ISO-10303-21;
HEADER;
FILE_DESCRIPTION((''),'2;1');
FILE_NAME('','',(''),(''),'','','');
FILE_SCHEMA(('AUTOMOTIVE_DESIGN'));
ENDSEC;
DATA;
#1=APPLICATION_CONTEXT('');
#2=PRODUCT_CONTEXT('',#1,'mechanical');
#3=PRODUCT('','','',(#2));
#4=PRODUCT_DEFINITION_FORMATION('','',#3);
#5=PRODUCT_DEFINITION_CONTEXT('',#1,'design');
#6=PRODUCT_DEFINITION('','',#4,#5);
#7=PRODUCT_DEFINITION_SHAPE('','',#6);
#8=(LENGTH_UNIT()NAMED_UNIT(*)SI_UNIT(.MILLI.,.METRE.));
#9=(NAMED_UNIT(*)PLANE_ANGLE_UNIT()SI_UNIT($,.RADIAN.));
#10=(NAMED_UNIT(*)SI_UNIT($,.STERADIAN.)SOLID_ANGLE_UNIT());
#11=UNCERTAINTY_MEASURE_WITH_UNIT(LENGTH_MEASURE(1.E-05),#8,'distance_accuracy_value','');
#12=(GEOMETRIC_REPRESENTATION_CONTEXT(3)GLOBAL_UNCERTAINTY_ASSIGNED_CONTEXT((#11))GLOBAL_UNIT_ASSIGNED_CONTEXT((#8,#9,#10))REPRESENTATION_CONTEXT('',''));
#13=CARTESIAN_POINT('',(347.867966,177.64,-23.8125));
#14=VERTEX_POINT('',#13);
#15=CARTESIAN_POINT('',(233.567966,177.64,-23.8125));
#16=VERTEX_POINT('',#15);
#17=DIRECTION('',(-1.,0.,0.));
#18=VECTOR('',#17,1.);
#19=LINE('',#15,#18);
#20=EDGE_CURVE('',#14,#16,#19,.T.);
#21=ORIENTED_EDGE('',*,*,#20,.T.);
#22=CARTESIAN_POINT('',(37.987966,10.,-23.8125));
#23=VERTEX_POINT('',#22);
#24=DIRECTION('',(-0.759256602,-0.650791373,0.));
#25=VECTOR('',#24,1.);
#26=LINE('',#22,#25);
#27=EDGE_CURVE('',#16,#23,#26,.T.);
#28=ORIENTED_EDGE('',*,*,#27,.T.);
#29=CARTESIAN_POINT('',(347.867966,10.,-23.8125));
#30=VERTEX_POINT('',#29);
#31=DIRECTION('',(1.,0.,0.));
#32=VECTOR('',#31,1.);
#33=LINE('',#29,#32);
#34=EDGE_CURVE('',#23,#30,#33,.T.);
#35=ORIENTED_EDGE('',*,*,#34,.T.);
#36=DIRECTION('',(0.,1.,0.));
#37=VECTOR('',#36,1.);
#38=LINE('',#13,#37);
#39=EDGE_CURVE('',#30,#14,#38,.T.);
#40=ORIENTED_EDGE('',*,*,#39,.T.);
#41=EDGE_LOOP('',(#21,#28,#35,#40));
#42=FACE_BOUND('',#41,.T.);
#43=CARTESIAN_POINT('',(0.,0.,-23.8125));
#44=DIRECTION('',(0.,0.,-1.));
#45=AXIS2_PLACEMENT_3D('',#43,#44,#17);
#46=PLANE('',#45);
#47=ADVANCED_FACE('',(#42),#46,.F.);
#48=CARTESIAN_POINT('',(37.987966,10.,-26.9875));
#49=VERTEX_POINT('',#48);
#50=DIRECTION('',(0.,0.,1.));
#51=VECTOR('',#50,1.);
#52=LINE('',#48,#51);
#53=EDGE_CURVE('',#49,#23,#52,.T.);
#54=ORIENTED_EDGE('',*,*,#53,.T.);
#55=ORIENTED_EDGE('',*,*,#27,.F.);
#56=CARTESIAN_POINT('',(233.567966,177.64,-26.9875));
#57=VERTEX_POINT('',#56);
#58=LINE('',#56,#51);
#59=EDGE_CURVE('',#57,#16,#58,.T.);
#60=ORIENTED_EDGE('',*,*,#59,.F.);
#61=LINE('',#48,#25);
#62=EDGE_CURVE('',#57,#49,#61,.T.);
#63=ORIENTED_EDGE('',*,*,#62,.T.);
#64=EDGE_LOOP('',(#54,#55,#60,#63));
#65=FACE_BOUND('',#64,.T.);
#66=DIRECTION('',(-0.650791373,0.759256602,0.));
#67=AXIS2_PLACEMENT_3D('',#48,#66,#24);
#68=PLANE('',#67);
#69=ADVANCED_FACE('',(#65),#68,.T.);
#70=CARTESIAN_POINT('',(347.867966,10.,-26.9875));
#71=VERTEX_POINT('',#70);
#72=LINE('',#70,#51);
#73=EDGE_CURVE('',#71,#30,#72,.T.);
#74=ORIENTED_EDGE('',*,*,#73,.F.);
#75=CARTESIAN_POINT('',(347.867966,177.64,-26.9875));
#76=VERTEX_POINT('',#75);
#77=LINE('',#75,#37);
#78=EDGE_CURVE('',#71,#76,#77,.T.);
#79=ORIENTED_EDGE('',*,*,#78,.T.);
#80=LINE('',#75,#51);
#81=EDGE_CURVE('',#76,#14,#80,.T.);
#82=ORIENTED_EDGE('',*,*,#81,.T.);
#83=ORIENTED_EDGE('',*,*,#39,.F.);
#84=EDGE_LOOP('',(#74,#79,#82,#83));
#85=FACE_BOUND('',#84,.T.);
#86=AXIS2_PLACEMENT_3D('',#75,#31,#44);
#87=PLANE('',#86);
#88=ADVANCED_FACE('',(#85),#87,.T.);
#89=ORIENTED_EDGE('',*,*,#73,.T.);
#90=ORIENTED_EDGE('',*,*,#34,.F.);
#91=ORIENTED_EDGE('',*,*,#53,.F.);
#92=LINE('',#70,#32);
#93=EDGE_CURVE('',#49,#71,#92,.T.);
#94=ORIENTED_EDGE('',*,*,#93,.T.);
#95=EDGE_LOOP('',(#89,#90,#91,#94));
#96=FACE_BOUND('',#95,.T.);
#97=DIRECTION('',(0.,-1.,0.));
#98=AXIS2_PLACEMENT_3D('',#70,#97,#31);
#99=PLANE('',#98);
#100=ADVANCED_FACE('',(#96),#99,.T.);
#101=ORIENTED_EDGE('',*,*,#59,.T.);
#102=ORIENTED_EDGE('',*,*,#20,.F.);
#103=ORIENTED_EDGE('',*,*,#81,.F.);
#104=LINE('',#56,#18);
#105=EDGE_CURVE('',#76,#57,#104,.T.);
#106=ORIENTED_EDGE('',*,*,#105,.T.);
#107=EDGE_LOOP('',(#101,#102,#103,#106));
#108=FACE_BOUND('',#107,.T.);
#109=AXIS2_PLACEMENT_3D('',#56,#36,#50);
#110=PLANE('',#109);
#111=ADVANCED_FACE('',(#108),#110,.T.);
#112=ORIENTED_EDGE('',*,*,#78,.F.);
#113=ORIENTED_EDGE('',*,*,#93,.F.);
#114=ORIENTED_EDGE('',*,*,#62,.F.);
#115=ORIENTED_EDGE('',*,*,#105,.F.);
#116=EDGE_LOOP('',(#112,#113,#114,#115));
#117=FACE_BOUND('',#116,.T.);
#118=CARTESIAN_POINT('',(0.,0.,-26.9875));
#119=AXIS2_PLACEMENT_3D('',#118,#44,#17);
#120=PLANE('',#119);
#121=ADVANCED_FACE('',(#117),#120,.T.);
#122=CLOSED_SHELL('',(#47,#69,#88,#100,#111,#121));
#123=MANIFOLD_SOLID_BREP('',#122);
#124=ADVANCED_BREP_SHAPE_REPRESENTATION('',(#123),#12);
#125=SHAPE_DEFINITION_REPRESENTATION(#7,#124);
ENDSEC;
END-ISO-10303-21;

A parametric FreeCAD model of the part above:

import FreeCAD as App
import Part
import Sketcher
from FreeCAD import Vector
Q = App.Units.Quantity


def add_polygon(sketch, points):
    """Adds a closed chain of lines whose ends are joined by coincident constraints."""
    first, n = sketch.GeometryCount, len(points)
    for a, b in zip(points, points[1:] + points[:1]):
        sketch.addGeometry(Part.LineSegment(App.Vector(*a, 0), App.Vector(*b, 0)), False)
    for i in range(n):
        sketch.addConstraint(Sketcher.Constraint("Coincident", first + i, 2, first + (i + 1) % n, 1))

doc = App.newDocument("Part")
body = doc.addObject("PartDesign::Body", "Body")

# Sketch on XZ plane
sketch1 = body.newObject("Sketcher::SketchObject", "Sketch")
sketch1.AttachmentSupport = (doc.getObject("XZ_Plane"), [""])
sketch1.MapMode = "FlatFace"
add_polygon(sketch1, [(0, -50.8), (0, 0), (381, 0), (381, -50.8)])  # lines 0-3
sketch1.addConstraint(Sketcher.Constraint("Vertical", 0))
sketch1.addConstraint(Sketcher.Constraint("Horizontal", 1))
sketch1.addConstraint(Sketcher.Constraint("Vertical", 2))
sketch1.addConstraint(Sketcher.Constraint("Horizontal", 3))
sketch1.addConstraint(Sketcher.Constraint("Coincident", 0, 2, -1, 1))
sketch1.addConstraint(Sketcher.Constraint("DistanceX", 1, 1, 1, 2, Q("15 in")))
sketch1.addConstraint(Sketcher.Constraint("DistanceY", 0, 1, 0, 2, Q("2 in")))
pad1 = body.newObject("PartDesign::Pad", "Pad")
pad1.Profile = sketch1
pad1.Length = 10
pad1.Reversed = True

# Sketch on XZ plane
sketch2 = body.newObject("Sketcher::SketchObject", "Sketch001")
sketch2.AttachmentSupport = (doc.getObject("XZ_Plane"), [""])
sketch2.MapMode = "FlatFace"
sketch2.AttachmentOffset = App.Placement(Vector(0, 0, -10), App.Rotation())
add_polygon(sketch2, [(0, -50.8), (0, 0), (381, 0), (381, -50.8)])  # lines 0-3
sketch2.addConstraint(Sketcher.Constraint("Vertical", 0))
sketch2.addConstraint(Sketcher.Constraint("Horizontal", 1))
sketch2.addConstraint(Sketcher.Constraint("Vertical", 2))
sketch2.addConstraint(Sketcher.Constraint("Horizontal", 3))
sketch2.addConstraint(Sketcher.Constraint("Coincident", 0, 2, -1, 1))
sketch2.addConstraint(Sketcher.Constraint("DistanceX", 1, 1, 1, 2, Q("15 in")))
sketch2.addConstraint(Sketcher.Constraint("DistanceY", 0, 1, 0, 2, Q("2 in")))
pocket1 = body.newObject("PartDesign::Pocket", "Pocket")
pocket1.Profile = sketch2
pocket1.Type = "ThroughAll"
pocket1.Reversed = True
body2 = doc.addObject("PartDesign::Body", "Body001")

# Sketch on XY plane
sketch3 = body2.newObject("Sketcher::SketchObject", "Sketch002")
sketch3.AttachmentSupport = (doc.getObject("XY_Plane001"), [""])
sketch3.MapMode = "FlatFace"
sketch3.AttachmentOffset = App.Placement(Vector(0, 0, -1 * 25.4), App.Rotation())
add_polygon(sketch3, [(37.987966, 10), (347.867966, 10), (347.867966, 177.64), (233.567966, 177.64)])  # lines 0-3
sketch3.addConstraint(Sketcher.Constraint("Horizontal", 0))
sketch3.addConstraint(Sketcher.Constraint("Vertical", 1))
sketch3.addConstraint(Sketcher.Constraint("Horizontal", 2))
sketch3.addConstraint(Sketcher.Constraint("DistanceX", 0, 1, 0, 2, Q("12.2 in")))
sketch3.addConstraint(Sketcher.Constraint("DistanceX", 2, 2, 2, 1, Q("4.5 in")))
sketch3.addConstraint(Sketcher.Constraint("DistanceY", 1, 1, 1, 2, Q("6.6 in")))
sketch3.addConstraint(Sketcher.Constraint("DistanceY", -1, 1, 0, 2, Q("10 mm")))
sketch3.addConstraint(Sketcher.Constraint("DistanceX", -1, 1, 0, 2, Q("347.867966 mm")))
pad2 = body2.newObject("PartDesign::Pad", "Pad001")
pad2.Profile = sketch3
pad2.Type = "TwoLengths"
pad2.Length = Q("0.0625 in")
pad2.Length2 = Q("0.0625 in")

doc.recompute()
